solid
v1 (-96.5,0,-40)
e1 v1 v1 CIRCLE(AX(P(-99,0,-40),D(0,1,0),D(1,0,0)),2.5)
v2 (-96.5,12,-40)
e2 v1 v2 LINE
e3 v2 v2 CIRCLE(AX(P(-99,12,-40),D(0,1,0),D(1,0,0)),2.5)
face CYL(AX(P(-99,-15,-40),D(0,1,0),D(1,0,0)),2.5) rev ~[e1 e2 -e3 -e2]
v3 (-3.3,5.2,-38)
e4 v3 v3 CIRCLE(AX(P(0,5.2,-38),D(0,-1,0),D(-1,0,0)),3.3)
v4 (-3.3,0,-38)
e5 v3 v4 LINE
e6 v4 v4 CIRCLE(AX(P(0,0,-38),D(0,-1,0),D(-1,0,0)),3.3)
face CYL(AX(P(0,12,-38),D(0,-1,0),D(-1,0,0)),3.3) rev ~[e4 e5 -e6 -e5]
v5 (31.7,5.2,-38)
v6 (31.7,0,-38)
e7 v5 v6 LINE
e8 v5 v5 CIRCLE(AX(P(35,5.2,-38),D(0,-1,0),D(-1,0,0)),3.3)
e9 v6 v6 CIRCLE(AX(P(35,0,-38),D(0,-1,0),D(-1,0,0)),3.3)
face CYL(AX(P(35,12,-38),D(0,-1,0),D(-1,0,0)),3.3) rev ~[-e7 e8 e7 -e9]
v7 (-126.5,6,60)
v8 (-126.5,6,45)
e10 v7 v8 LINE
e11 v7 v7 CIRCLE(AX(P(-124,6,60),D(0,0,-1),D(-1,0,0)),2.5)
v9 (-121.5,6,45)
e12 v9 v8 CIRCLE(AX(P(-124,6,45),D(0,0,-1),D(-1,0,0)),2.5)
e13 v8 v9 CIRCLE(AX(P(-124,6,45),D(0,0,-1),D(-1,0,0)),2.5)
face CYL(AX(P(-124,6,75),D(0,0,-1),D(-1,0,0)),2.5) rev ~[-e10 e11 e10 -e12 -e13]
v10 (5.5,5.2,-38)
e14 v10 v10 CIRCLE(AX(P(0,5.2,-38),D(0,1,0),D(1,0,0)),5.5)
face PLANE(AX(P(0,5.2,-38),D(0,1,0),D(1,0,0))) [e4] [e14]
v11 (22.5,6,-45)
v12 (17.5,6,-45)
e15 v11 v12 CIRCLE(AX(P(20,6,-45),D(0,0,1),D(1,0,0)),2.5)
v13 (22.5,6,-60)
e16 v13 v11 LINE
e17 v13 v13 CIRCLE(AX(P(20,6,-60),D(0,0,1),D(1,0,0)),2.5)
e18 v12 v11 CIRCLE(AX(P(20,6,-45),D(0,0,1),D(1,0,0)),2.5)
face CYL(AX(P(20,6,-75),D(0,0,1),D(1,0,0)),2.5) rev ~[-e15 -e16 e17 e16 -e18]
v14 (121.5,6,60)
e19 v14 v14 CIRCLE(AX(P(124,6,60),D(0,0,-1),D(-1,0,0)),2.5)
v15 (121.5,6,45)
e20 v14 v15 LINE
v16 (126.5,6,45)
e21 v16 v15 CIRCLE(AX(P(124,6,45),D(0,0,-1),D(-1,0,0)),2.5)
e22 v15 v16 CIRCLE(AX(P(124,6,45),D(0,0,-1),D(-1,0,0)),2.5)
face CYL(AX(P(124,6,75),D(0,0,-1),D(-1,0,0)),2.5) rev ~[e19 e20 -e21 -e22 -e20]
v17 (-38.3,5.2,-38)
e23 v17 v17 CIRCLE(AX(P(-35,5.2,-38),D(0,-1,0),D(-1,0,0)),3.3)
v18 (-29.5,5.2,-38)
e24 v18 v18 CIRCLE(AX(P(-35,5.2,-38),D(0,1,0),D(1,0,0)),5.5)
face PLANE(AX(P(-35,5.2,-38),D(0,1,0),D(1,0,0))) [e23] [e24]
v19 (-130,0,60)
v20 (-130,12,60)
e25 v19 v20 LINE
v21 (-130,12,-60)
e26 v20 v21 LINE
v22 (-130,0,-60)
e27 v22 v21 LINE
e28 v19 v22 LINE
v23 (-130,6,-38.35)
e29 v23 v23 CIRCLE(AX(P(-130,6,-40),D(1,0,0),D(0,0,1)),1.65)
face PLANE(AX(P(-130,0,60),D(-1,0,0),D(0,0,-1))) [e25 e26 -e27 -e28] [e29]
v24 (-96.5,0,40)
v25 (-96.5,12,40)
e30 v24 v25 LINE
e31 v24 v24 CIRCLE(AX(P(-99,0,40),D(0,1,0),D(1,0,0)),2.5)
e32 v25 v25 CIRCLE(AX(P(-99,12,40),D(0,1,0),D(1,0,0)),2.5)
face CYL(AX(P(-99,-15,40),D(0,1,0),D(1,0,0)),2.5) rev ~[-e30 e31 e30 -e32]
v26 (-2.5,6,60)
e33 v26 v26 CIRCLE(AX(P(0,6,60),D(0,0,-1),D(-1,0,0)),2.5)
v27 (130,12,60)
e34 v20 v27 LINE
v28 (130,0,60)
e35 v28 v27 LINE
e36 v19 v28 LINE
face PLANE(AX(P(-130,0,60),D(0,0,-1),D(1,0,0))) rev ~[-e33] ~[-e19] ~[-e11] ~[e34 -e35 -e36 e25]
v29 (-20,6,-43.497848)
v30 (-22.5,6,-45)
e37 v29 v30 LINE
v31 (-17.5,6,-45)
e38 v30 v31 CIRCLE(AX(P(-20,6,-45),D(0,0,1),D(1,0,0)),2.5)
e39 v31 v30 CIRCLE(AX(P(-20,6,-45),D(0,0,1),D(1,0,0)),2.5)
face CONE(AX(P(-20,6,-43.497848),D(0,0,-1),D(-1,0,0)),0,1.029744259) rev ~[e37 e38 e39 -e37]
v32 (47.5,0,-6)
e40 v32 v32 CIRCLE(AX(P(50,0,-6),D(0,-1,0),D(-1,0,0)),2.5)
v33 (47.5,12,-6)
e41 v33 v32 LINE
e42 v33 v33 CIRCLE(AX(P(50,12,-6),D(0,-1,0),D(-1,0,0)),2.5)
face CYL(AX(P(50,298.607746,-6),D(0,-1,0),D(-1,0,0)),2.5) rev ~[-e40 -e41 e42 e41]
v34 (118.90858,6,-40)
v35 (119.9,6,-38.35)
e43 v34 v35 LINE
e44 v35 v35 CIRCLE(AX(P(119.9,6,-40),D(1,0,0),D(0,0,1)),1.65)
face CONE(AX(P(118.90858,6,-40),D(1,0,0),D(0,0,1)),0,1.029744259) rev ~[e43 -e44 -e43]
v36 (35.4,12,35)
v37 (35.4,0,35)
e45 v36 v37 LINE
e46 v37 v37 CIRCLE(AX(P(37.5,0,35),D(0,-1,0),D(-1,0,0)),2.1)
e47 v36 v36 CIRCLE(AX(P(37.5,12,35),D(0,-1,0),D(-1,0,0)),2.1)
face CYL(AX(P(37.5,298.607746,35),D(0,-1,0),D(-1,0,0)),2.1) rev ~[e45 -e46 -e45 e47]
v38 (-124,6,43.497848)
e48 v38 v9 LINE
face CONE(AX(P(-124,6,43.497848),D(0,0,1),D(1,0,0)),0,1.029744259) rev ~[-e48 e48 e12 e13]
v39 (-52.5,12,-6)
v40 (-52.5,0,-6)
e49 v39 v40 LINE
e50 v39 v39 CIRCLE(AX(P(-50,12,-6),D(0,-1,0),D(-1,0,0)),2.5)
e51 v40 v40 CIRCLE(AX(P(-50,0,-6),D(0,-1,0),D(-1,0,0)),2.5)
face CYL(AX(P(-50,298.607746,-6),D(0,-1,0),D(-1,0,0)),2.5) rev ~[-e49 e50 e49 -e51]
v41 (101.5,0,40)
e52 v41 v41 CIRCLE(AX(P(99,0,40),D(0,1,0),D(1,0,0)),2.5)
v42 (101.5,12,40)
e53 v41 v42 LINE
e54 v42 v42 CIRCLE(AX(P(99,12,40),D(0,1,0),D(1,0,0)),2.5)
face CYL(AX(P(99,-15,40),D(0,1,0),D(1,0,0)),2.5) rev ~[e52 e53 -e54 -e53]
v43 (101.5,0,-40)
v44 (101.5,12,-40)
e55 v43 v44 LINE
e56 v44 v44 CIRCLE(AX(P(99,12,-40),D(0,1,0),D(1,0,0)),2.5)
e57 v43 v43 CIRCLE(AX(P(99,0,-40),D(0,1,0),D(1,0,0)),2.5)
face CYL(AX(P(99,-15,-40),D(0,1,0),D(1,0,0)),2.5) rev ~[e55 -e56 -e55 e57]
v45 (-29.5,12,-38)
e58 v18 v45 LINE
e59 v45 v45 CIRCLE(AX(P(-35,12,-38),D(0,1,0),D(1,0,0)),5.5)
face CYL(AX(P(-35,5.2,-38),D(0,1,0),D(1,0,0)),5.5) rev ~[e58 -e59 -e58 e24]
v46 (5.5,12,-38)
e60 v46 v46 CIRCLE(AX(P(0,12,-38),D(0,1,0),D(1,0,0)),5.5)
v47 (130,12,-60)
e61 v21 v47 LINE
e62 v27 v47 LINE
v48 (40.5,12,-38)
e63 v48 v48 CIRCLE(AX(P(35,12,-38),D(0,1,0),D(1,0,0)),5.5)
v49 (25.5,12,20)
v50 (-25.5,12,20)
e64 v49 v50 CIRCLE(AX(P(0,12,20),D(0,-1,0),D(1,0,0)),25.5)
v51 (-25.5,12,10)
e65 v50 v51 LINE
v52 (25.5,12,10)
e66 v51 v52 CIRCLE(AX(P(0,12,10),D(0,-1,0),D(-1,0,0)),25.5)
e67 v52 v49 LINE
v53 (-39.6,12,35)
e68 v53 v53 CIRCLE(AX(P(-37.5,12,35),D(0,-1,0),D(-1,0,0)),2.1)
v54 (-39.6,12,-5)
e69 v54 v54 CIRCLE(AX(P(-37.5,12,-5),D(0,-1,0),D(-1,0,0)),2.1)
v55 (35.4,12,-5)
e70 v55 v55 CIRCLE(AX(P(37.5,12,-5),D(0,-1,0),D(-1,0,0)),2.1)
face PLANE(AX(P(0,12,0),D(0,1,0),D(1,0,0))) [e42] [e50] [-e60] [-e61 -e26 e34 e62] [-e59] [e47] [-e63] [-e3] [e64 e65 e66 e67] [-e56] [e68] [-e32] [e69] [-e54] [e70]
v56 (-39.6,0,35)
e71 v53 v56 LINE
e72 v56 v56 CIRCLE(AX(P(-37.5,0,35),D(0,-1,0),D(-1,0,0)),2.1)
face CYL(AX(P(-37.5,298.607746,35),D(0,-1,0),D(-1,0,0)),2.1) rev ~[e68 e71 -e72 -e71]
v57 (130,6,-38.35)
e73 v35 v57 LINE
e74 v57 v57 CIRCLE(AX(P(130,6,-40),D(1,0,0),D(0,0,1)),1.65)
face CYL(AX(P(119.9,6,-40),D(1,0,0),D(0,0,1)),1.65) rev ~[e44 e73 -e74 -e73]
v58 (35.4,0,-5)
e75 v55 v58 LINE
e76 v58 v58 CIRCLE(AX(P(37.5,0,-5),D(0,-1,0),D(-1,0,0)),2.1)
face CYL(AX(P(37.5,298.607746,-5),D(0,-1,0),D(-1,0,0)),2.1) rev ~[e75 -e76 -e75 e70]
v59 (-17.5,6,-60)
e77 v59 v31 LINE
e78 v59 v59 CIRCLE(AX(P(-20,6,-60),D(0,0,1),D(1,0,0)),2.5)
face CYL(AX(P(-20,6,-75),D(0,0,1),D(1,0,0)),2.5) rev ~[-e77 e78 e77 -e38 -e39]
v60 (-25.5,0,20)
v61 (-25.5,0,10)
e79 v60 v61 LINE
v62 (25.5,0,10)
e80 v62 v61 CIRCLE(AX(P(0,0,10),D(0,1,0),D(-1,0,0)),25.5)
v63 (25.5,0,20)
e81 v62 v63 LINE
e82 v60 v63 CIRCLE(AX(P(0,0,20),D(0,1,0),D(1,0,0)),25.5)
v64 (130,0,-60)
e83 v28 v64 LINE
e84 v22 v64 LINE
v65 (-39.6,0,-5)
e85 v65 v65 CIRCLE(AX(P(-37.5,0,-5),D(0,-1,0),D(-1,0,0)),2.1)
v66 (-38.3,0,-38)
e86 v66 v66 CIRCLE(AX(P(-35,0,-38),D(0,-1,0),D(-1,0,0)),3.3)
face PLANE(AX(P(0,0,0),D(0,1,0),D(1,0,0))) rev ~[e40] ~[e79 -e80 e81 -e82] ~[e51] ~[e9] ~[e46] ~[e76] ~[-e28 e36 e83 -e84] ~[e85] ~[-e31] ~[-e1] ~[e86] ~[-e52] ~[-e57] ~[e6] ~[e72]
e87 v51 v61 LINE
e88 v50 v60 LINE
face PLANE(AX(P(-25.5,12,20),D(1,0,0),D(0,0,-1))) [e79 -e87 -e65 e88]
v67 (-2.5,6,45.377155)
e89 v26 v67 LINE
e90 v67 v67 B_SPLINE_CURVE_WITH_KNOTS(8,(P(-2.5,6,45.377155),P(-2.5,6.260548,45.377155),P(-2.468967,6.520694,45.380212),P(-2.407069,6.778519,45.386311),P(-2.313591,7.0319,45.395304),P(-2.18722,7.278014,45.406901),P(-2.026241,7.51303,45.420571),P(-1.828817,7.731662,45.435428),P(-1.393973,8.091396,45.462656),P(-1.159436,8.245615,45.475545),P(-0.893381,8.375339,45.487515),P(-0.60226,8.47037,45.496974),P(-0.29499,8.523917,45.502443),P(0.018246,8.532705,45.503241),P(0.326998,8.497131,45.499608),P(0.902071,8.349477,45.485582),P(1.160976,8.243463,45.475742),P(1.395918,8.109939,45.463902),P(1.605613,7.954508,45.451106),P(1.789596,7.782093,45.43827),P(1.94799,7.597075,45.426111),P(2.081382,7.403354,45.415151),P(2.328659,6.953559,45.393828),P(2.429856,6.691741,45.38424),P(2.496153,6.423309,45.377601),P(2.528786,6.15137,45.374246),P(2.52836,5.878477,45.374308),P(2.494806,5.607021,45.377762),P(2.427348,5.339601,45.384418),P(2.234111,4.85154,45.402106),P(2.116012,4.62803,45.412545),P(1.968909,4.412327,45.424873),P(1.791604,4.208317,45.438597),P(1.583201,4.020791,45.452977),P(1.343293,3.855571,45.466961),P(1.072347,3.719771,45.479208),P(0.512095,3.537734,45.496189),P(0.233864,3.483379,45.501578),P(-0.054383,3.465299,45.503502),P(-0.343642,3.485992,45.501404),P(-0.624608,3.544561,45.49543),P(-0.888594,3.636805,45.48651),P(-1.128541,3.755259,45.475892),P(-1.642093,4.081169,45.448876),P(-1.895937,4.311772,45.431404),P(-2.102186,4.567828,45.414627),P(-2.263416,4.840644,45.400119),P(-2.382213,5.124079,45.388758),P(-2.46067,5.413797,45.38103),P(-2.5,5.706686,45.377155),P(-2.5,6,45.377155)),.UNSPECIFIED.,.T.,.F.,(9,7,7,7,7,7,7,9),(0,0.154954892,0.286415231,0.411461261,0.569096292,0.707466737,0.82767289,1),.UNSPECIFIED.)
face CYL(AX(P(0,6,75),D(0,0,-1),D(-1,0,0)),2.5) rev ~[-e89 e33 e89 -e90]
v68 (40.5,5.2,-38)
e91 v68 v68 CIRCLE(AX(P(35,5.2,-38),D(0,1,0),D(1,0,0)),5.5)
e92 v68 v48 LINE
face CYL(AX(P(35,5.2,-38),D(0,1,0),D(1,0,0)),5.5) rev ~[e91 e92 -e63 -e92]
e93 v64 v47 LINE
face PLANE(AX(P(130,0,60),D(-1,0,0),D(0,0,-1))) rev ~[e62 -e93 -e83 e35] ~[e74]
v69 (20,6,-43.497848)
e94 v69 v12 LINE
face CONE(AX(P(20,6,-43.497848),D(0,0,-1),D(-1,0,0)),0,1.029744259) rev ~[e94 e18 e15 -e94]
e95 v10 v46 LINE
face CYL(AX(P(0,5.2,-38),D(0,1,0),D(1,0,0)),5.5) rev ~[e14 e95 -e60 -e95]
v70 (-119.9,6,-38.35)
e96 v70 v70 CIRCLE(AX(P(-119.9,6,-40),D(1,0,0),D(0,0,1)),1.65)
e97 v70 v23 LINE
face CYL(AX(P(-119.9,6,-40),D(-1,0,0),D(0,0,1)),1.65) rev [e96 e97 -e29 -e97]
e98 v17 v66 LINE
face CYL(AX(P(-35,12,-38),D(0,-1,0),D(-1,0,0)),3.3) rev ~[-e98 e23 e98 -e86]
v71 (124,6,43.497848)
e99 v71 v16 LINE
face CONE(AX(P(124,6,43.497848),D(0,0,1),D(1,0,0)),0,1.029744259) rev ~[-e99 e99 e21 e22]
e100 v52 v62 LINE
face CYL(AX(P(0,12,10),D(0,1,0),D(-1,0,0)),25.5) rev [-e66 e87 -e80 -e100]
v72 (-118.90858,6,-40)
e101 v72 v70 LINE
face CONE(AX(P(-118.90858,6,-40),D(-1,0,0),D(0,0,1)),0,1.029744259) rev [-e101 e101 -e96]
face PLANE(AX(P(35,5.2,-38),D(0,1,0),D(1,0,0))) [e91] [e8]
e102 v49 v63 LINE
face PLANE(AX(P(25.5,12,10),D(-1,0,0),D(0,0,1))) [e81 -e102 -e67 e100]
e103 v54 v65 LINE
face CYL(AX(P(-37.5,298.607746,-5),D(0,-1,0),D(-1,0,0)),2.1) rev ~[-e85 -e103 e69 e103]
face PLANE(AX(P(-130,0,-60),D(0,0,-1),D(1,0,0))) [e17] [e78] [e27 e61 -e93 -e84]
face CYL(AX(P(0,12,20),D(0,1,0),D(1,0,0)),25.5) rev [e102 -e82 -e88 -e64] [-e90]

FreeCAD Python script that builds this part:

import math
import FreeCAD as App
import Part
import Sketcher
Q = App.Units.Quantity

doc = App.newDocument("Part")
body = doc.addObject("PartDesign::Body", "Body")

sketch1 = body.newObject("Sketcher::SketchObject", "Sketch")
sketch1.AttachmentSupport = (doc.getObject("XZ_Plane"), [""])
sketch1.MapMode = "FlatFace"
sketch1.addGeometry([
    Part.LineSegment(App.Vector(-130, -60, 0), App.Vector(-130, 60, 0)),
    Part.LineSegment(App.Vector(-130, 60, 0), App.Vector(130, 60, 0)),
    Part.LineSegment(App.Vector(130, 60, 0), App.Vector(130, -60, 0)),
    Part.LineSegment(App.Vector(130, -60, 0), App.Vector(-130, -60, 0)),
], False)
sketch1.addConstraint([
    Sketcher.Constraint("Coincident", 0, 2, 1, 1),
    Sketcher.Constraint("Coincident", 1, 2, 2, 1),
    Sketcher.Constraint("Coincident", 2, 2, 3, 1),
    Sketcher.Constraint("Coincident", 3, 2, 0, 1),
    Sketcher.Constraint("Vertical", 0),
    Sketcher.Constraint("Horizontal", 1),
    Sketcher.Constraint("Vertical", 2),
    Sketcher.Constraint("Horizontal", 3),
    Sketcher.Constraint("Symmetric", 0, 2, 2, 2, -1, 1),
    Sketcher.Constraint("DistanceX", 1, 1, 1, 2, 260.0),
    Sketcher.Constraint("DistanceY", 0, 1, 0, 2, 120.0),
])
pad1 = body.newObject("PartDesign::Pad", "Pad")
pad1.Profile = sketch1
pad1.Length = 12
pad1.Reversed = True

sketch2 = body.newObject("Sketcher::SketchObject", "Sketch001")
sketch2.AttachmentSupport = (doc.getObject("XY_Plane"), [""])
sketch2.MapMode = "FlatFace"
sketch2.AttachmentOffset = App.Placement(App.Vector(0, 0, 60), App.Rotation())
sketch2.addGeometry([
    Part.Circle(App.Vector(-124, 6, 0), App.Vector(0, 0, 1), 2.5),
    Part.Circle(App.Vector(0, 6, 0), App.Vector(0, 0, 1), 2.5),
    Part.Circle(App.Vector(124, 6, 0), App.Vector(0, 0, 1), 2.5),
], False)
sketch2.addConstraint([
    Sketcher.Constraint("Equal", 0, 1),
    Sketcher.Constraint("Equal", 1, 2),
    Sketcher.Constraint("Symmetric", 0, 3, 2, 3, -2),
    Sketcher.Constraint("PointOnObject", 1, 3, -2),
    Sketcher.Constraint("Horizontal", 0, 3, 1, 3),
    Sketcher.Constraint("Diameter", 0, 5.0),
    Sketcher.Constraint("DistanceX", 0, 3, -1, 1, 124.0),
    Sketcher.Constraint("DistanceY", -1, 1, 0, 3, 6.0),
])
doc.recompute()
hole = body.newObject("PartDesign::Hole", "Hole")
hole.Profile = sketch2
hole.ThreadType = "None"
hole.Diameter = 5
hole.DepthType = "Dimension"
hole.Depth = 15
hole.DrillPoint = "Angled"
hole.DrillPointAngle = 118

sketch3 = body.newObject("Sketcher::SketchObject", "Sketch002")
sketch3.AttachmentSupport = (doc.getObject("XZ_Plane"), [""])
sketch3.MapMode = "FlatFace"
sketch3.AttachmentOffset = App.Placement(App.Vector(0, 0, -12), App.Rotation())
sketch3.addGeometry([
    Part.LineSegment(App.Vector(26, 20, 0), App.Vector(26, 10, 0)),
    Part.ArcOfCircle(Part.Circle(App.Vector(0, 10, 0), App.Vector(0, 0, 1), 26), math.radians(180), math.radians(360)),
    Part.LineSegment(App.Vector(-26, 10, 0), App.Vector(-26, 20, 0)),
    Part.ArcOfCircle(Part.Circle(App.Vector(0, 20, 0), App.Vector(0, 0, 1), 26), math.radians(0), math.radians(180)),
], False)
sketch3.addConstraint([
    Sketcher.Constraint("Tangent", 0, 2, 1, 2),
    Sketcher.Constraint("Tangent", 1, 1, 2, 1),
    Sketcher.Constraint("Tangent", 2, 2, 3, 2),
    Sketcher.Constraint("Tangent", 3, 1, 0, 1),
    Sketcher.Constraint("Vertical", 0),
    Sketcher.Constraint("Vertical", 2),
    Sketcher.Constraint("PointOnObject", 1, 3, -2),
    Sketcher.Constraint("Radius", 1, 25.5),
    Sketcher.Constraint("DistanceY", 0, 2, 0, 1, 10.0),
    Sketcher.Constraint("DistanceY", -1, 1, 1, 3, 10.0),
])
pocket1 = body.newObject("PartDesign::Pocket", "Pocket")
pocket1.Profile = sketch3
pocket1.Type = "ThroughAll"
pocket1.Reversed = True

sketch4 = body.newObject("Sketcher::SketchObject", "Sketch003")
sketch4.AttachmentSupport = (doc.getObject("XZ_Plane"), [""])
sketch4.MapMode = "FlatFace"
sketch4.AttachmentOffset = App.Placement(App.Vector(0, 0, -12), App.Rotation())
sketch4.addGeometry([
    Part.Circle(App.Vector(-35, -38, 0), App.Vector(0, 0, 1), 3.3),
    Part.Circle(App.Vector(35, -38, 0), App.Vector(0, 0, 1), 3.3),
    Part.Circle(App.Vector(0, -38, 0), App.Vector(0, 0, 1), 3.3),
], False)
sketch4.addConstraint([
    Sketcher.Constraint("Equal", 0, 1),
    Sketcher.Constraint("Equal", 1, 2),
    Sketcher.Constraint("Symmetric", 0, 3, 1, 3, -2),
    Sketcher.Constraint("PointOnObject", 2, 3, -2),
    Sketcher.Constraint("Horizontal", 1, 3, 2, 3),
    Sketcher.Constraint("Diameter", 0, 6.6),
    Sketcher.Constraint("DistanceX", 0, 3, -1, 1, 35.0),
    Sketcher.Constraint("DistanceY", 0, 3, -1, 1, 38.0),
])
doc.recompute()
hole2 = body.newObject("PartDesign::Hole", "Hole001")
hole2.Profile = sketch4
hole2.ThreadType = "None"
hole2.Diameter = 6.6
hole2.DepthType = "ThroughAll"
hole2.HoleCutType = "Counterbore"
hole2.HoleCutDiameter = 11
hole2.HoleCutDepth = 6.8
hole2.Reversed = True

sketch5 = body.newObject("Sketcher::SketchObject", "Sketch004")
sketch5.AttachmentSupport = (doc.getObject("XY_Plane"), [""])
sketch5.MapMode = "FlatFace"
sketch5.AttachmentOffset = App.Placement(App.Vector(0, 0, -60), App.Rotation())
sketch5.addGeometry([
    Part.Circle(App.Vector(-20, 6, 0), App.Vector(0, 0, 1), 2.5),
    Part.Circle(App.Vector(20, 6, 0), App.Vector(0, 0, 1), 2.5),
], False)
sketch5.addConstraint([
    Sketcher.Constraint("Equal", 0, 1),
    Sketcher.Constraint("Symmetric", 0, 3, 1, 3, -2),
    Sketcher.Constraint("Diameter", 0, 5.0),
    Sketcher.Constraint("DistanceX", 0, 3, -1, 1, 20.0),
    Sketcher.Constraint("DistanceY", -1, 1, 0, 3, 6.0),
])
doc.recompute()
hole3 = body.newObject("PartDesign::Hole", "Hole002")
hole3.Profile = sketch5
hole3.ThreadType = "None"
hole3.Diameter = 5
hole3.DepthType = "Dimension"
hole3.Depth = 15
hole3.DrillPoint = "Angled"
hole3.DrillPointAngle = 118
hole3.Reversed = True

sketch6 = body.newObject("Sketcher::SketchObject", "Sketch005")
sketch6.AttachmentSupport = (doc.getObject("XZ_Plane"), [""])
sketch6.MapMode = "FlatFace"
sketch6.AttachmentOffset = App.Placement(App.Vector(0, 0, -12), App.Rotation())
sketch6.addGeometry([
    Part.Circle(App.Vector(37.5, -5, 0), App.Vector(0, 0, 1), 2.1),
    Part.Circle(App.Vector(37.5, 35, 0), App.Vector(0, 0, 1), 2.1),
    Part.Circle(App.Vector(-37.5, 35, 0), App.Vector(0, 0, 1), 2.1),
    Part.Circle(App.Vector(-37.5, -5, 0), App.Vector(0, 0, 1), 2.1),
], False)
sketch6.addConstraint([
    Sketcher.Constraint("Equal", 0, 1),
    Sketcher.Constraint("Equal", 1, 2),
    Sketcher.Constraint("Equal", 2, 3),
    Sketcher.Constraint("Symmetric", 1, 3, 2, 3, -2),
    Sketcher.Constraint("Symmetric", 0, 3, 3, 3, -2),
    Sketcher.Constraint("Vertical", 0, 3, 1, 3),
    Sketcher.Constraint("Diameter", 0, 4.2),
    Sketcher.Constraint("DistanceY", 0, 3, -1, 1, 5.0),
    Sketcher.Constraint("DistanceY", -1, 1, 1, 3, 35.0),
    Sketcher.Constraint("DistanceX", 2, 3, 1, 3, 75.0),
])
doc.recompute()
hole4 = body.newObject("PartDesign::Hole", "Hole003")
hole4.Profile = sketch6
hole4.ThreadType = "None"
hole4.Diameter = 4.2
hole4.DepthType = "ThroughAll"
hole4.Reversed = True

sketch7 = body.newObject("Sketcher::SketchObject", "Sketch006")
sketch7.AttachmentSupport = (doc.getObject("XZ_Plane"), [""])
sketch7.MapMode = "FlatFace"
sketch7.AttachmentOffset = App.Placement(App.Vector(0, 0, -12), App.Rotation())
sketch7.addGeometry([
    Part.Circle(App.Vector(50, -6, 0), App.Vector(0, 0, 1), 2.5),
    Part.Circle(App.Vector(-50, -6, 0), App.Vector(0, 0, 1), 2.5),
], False)
sketch7.addConstraint([
    Sketcher.Constraint("Equal", 0, 1),
    Sketcher.Constraint("Symmetric", 0, 3, 1, 3, -2),
    Sketcher.Constraint("Diameter", 0, 5.0),
    Sketcher.Constraint("DistanceX", -1, 1, 0, 3, 50.0),
    Sketcher.Constraint("DistanceY", 0, 3, -1, 1, 6.0),
])
doc.recompute()
hole5 = body.newObject("PartDesign::Hole", "Hole004")
hole5.Profile = sketch7
hole5.ThreadType = "None"
hole5.Diameter = 5
hole5.DepthType = "ThroughAll"
hole5.Reversed = True

sketch8 = body.newObject("Sketcher::SketchObject", "Sketch007")
sketch8.AttachmentSupport = (doc.getObject("XZ_Plane"), [""])
sketch8.MapMode = "FlatFace"
sketch8.addGeometry([
    Part.Circle(App.Vector(-99, 40, 0), App.Vector(0, 0, 1), 2.5),
    Part.Circle(App.Vector(-99, -40, 0), App.Vector(0, 0, 1), 2.5),
    Part.Circle(App.Vector(99, -40, 0), App.Vector(0, 0, 1), 2.5),
    Part.Circle(App.Vector(99, 40, 0), App.Vector(0, 0, 1), 2.5),
], False)
sketch8.addConstraint([
    Sketcher.Constraint("Equal", 0, 1),
    Sketcher.Constraint("Equal", 1, 2),
    Sketcher.Constraint("Equal", 2, 3),
    Sketcher.Constraint("Symmetric", 0, 3, 2, 3, -1, 1),
    Sketcher.Constraint("Symmetric", 1, 3, 3, 3, -1, 1),
    Sketcher.Constraint("Symmetric", 1, 3, 2, 3, -2),
    Sketcher.Constraint("Diameter", 0, 5.0),
    Sketcher.Constraint("DistanceX", 0, 3, -1, 1, 99.0),
    Sketcher.Constraint("DistanceY", -1, 1, 0, 3, 40.0),
])
doc.recompute()
hole6 = body.newObject("PartDesign::Hole", "Hole005")
hole6.Profile = sketch8
hole6.ThreadType = "None"
hole6.Diameter = 5
hole6.DepthType = "Dimension"
hole6.Depth = 15
hole6.DrillPoint = "Angled"
hole6.DrillPointAngle = 118

sketch9 = body.newObject("Sketcher::SketchObject", "Sketch008")
sketch9.AttachmentSupport = (doc.getObject("XZ_Plane"), [""])
sketch9.MapMode = "FlatFace"
sketch9.AttachmentOffset = App.Placement(App.Vector(0, 0, -6), App.Rotation())
sketch9.addGeometry([
    Part.LineSegment(App.Vector(-118.9, -40, 0), App.Vector(-130, -40, 0)),
    Part.LineSegment(App.Vector(-130, -40, 0), App.Vector(-130, -38.4, 0)),
    Part.LineSegment(App.Vector(-130, -38.4, 0), App.Vector(-119.9, -38.4, 0)),
    Part.LineSegment(App.Vector(-119.9, -38.4, 0), App.Vector(-118.9, -40, 0)),
], False)
sketch9.addGeometry(Part.LineSegment(App.Vector(-130, -40, 0), App.Vector(-118.9, -40, 0)), True)
sketch9.addConstraint([
    Sketcher.Constraint("Coincident", 0, 2, 1, 1),
    Sketcher.Constraint("Coincident", 1, 2, 2, 1),
    Sketcher.Constraint("Coincident", 2, 2, 3, 1),
    Sketcher.Constraint("Coincident", 3, 2, 0, 1),
    Sketcher.Constraint("Horizontal", 0),
    Sketcher.Constraint("Vertical", 1),
    Sketcher.Constraint("Horizontal", 2),
    Sketcher.Constraint("Horizontal", 4),
    Sketcher.Constraint("Coincident", 4, 1, 0, 2),
    Sketcher.Constraint("Equal", 0, 4),
    Sketcher.Constraint("Angle", 3, Q("-59 deg")),
    Sketcher.Constraint("DistanceX", 2, 1, 2, 2, 10.1),
    Sketcher.Constraint("DistanceX", 0, 2, -1, 1, 130.0),
    Sketcher.Constraint("DistanceY", 0, 2, -1, 1, 40.0),
    Sketcher.Constraint("DistanceY", 1, 1, 1, 2, 1.65),
])
groove = body.newObject("PartDesign::Groove", "Groove")
groove.Profile = sketch9
groove.ReferenceAxis = (sketch9, ["Axis0"])
groove.Angle = 360
doc.recompute()

mirrored = body.newObject("PartDesign::Mirrored", "Mirrored")
mirrored.Originals = [groove]
mirrored.MirrorPlane = (doc.getObject("YZ_Plane"), [""])
body.Tip = mirrored

doc.recompute()
